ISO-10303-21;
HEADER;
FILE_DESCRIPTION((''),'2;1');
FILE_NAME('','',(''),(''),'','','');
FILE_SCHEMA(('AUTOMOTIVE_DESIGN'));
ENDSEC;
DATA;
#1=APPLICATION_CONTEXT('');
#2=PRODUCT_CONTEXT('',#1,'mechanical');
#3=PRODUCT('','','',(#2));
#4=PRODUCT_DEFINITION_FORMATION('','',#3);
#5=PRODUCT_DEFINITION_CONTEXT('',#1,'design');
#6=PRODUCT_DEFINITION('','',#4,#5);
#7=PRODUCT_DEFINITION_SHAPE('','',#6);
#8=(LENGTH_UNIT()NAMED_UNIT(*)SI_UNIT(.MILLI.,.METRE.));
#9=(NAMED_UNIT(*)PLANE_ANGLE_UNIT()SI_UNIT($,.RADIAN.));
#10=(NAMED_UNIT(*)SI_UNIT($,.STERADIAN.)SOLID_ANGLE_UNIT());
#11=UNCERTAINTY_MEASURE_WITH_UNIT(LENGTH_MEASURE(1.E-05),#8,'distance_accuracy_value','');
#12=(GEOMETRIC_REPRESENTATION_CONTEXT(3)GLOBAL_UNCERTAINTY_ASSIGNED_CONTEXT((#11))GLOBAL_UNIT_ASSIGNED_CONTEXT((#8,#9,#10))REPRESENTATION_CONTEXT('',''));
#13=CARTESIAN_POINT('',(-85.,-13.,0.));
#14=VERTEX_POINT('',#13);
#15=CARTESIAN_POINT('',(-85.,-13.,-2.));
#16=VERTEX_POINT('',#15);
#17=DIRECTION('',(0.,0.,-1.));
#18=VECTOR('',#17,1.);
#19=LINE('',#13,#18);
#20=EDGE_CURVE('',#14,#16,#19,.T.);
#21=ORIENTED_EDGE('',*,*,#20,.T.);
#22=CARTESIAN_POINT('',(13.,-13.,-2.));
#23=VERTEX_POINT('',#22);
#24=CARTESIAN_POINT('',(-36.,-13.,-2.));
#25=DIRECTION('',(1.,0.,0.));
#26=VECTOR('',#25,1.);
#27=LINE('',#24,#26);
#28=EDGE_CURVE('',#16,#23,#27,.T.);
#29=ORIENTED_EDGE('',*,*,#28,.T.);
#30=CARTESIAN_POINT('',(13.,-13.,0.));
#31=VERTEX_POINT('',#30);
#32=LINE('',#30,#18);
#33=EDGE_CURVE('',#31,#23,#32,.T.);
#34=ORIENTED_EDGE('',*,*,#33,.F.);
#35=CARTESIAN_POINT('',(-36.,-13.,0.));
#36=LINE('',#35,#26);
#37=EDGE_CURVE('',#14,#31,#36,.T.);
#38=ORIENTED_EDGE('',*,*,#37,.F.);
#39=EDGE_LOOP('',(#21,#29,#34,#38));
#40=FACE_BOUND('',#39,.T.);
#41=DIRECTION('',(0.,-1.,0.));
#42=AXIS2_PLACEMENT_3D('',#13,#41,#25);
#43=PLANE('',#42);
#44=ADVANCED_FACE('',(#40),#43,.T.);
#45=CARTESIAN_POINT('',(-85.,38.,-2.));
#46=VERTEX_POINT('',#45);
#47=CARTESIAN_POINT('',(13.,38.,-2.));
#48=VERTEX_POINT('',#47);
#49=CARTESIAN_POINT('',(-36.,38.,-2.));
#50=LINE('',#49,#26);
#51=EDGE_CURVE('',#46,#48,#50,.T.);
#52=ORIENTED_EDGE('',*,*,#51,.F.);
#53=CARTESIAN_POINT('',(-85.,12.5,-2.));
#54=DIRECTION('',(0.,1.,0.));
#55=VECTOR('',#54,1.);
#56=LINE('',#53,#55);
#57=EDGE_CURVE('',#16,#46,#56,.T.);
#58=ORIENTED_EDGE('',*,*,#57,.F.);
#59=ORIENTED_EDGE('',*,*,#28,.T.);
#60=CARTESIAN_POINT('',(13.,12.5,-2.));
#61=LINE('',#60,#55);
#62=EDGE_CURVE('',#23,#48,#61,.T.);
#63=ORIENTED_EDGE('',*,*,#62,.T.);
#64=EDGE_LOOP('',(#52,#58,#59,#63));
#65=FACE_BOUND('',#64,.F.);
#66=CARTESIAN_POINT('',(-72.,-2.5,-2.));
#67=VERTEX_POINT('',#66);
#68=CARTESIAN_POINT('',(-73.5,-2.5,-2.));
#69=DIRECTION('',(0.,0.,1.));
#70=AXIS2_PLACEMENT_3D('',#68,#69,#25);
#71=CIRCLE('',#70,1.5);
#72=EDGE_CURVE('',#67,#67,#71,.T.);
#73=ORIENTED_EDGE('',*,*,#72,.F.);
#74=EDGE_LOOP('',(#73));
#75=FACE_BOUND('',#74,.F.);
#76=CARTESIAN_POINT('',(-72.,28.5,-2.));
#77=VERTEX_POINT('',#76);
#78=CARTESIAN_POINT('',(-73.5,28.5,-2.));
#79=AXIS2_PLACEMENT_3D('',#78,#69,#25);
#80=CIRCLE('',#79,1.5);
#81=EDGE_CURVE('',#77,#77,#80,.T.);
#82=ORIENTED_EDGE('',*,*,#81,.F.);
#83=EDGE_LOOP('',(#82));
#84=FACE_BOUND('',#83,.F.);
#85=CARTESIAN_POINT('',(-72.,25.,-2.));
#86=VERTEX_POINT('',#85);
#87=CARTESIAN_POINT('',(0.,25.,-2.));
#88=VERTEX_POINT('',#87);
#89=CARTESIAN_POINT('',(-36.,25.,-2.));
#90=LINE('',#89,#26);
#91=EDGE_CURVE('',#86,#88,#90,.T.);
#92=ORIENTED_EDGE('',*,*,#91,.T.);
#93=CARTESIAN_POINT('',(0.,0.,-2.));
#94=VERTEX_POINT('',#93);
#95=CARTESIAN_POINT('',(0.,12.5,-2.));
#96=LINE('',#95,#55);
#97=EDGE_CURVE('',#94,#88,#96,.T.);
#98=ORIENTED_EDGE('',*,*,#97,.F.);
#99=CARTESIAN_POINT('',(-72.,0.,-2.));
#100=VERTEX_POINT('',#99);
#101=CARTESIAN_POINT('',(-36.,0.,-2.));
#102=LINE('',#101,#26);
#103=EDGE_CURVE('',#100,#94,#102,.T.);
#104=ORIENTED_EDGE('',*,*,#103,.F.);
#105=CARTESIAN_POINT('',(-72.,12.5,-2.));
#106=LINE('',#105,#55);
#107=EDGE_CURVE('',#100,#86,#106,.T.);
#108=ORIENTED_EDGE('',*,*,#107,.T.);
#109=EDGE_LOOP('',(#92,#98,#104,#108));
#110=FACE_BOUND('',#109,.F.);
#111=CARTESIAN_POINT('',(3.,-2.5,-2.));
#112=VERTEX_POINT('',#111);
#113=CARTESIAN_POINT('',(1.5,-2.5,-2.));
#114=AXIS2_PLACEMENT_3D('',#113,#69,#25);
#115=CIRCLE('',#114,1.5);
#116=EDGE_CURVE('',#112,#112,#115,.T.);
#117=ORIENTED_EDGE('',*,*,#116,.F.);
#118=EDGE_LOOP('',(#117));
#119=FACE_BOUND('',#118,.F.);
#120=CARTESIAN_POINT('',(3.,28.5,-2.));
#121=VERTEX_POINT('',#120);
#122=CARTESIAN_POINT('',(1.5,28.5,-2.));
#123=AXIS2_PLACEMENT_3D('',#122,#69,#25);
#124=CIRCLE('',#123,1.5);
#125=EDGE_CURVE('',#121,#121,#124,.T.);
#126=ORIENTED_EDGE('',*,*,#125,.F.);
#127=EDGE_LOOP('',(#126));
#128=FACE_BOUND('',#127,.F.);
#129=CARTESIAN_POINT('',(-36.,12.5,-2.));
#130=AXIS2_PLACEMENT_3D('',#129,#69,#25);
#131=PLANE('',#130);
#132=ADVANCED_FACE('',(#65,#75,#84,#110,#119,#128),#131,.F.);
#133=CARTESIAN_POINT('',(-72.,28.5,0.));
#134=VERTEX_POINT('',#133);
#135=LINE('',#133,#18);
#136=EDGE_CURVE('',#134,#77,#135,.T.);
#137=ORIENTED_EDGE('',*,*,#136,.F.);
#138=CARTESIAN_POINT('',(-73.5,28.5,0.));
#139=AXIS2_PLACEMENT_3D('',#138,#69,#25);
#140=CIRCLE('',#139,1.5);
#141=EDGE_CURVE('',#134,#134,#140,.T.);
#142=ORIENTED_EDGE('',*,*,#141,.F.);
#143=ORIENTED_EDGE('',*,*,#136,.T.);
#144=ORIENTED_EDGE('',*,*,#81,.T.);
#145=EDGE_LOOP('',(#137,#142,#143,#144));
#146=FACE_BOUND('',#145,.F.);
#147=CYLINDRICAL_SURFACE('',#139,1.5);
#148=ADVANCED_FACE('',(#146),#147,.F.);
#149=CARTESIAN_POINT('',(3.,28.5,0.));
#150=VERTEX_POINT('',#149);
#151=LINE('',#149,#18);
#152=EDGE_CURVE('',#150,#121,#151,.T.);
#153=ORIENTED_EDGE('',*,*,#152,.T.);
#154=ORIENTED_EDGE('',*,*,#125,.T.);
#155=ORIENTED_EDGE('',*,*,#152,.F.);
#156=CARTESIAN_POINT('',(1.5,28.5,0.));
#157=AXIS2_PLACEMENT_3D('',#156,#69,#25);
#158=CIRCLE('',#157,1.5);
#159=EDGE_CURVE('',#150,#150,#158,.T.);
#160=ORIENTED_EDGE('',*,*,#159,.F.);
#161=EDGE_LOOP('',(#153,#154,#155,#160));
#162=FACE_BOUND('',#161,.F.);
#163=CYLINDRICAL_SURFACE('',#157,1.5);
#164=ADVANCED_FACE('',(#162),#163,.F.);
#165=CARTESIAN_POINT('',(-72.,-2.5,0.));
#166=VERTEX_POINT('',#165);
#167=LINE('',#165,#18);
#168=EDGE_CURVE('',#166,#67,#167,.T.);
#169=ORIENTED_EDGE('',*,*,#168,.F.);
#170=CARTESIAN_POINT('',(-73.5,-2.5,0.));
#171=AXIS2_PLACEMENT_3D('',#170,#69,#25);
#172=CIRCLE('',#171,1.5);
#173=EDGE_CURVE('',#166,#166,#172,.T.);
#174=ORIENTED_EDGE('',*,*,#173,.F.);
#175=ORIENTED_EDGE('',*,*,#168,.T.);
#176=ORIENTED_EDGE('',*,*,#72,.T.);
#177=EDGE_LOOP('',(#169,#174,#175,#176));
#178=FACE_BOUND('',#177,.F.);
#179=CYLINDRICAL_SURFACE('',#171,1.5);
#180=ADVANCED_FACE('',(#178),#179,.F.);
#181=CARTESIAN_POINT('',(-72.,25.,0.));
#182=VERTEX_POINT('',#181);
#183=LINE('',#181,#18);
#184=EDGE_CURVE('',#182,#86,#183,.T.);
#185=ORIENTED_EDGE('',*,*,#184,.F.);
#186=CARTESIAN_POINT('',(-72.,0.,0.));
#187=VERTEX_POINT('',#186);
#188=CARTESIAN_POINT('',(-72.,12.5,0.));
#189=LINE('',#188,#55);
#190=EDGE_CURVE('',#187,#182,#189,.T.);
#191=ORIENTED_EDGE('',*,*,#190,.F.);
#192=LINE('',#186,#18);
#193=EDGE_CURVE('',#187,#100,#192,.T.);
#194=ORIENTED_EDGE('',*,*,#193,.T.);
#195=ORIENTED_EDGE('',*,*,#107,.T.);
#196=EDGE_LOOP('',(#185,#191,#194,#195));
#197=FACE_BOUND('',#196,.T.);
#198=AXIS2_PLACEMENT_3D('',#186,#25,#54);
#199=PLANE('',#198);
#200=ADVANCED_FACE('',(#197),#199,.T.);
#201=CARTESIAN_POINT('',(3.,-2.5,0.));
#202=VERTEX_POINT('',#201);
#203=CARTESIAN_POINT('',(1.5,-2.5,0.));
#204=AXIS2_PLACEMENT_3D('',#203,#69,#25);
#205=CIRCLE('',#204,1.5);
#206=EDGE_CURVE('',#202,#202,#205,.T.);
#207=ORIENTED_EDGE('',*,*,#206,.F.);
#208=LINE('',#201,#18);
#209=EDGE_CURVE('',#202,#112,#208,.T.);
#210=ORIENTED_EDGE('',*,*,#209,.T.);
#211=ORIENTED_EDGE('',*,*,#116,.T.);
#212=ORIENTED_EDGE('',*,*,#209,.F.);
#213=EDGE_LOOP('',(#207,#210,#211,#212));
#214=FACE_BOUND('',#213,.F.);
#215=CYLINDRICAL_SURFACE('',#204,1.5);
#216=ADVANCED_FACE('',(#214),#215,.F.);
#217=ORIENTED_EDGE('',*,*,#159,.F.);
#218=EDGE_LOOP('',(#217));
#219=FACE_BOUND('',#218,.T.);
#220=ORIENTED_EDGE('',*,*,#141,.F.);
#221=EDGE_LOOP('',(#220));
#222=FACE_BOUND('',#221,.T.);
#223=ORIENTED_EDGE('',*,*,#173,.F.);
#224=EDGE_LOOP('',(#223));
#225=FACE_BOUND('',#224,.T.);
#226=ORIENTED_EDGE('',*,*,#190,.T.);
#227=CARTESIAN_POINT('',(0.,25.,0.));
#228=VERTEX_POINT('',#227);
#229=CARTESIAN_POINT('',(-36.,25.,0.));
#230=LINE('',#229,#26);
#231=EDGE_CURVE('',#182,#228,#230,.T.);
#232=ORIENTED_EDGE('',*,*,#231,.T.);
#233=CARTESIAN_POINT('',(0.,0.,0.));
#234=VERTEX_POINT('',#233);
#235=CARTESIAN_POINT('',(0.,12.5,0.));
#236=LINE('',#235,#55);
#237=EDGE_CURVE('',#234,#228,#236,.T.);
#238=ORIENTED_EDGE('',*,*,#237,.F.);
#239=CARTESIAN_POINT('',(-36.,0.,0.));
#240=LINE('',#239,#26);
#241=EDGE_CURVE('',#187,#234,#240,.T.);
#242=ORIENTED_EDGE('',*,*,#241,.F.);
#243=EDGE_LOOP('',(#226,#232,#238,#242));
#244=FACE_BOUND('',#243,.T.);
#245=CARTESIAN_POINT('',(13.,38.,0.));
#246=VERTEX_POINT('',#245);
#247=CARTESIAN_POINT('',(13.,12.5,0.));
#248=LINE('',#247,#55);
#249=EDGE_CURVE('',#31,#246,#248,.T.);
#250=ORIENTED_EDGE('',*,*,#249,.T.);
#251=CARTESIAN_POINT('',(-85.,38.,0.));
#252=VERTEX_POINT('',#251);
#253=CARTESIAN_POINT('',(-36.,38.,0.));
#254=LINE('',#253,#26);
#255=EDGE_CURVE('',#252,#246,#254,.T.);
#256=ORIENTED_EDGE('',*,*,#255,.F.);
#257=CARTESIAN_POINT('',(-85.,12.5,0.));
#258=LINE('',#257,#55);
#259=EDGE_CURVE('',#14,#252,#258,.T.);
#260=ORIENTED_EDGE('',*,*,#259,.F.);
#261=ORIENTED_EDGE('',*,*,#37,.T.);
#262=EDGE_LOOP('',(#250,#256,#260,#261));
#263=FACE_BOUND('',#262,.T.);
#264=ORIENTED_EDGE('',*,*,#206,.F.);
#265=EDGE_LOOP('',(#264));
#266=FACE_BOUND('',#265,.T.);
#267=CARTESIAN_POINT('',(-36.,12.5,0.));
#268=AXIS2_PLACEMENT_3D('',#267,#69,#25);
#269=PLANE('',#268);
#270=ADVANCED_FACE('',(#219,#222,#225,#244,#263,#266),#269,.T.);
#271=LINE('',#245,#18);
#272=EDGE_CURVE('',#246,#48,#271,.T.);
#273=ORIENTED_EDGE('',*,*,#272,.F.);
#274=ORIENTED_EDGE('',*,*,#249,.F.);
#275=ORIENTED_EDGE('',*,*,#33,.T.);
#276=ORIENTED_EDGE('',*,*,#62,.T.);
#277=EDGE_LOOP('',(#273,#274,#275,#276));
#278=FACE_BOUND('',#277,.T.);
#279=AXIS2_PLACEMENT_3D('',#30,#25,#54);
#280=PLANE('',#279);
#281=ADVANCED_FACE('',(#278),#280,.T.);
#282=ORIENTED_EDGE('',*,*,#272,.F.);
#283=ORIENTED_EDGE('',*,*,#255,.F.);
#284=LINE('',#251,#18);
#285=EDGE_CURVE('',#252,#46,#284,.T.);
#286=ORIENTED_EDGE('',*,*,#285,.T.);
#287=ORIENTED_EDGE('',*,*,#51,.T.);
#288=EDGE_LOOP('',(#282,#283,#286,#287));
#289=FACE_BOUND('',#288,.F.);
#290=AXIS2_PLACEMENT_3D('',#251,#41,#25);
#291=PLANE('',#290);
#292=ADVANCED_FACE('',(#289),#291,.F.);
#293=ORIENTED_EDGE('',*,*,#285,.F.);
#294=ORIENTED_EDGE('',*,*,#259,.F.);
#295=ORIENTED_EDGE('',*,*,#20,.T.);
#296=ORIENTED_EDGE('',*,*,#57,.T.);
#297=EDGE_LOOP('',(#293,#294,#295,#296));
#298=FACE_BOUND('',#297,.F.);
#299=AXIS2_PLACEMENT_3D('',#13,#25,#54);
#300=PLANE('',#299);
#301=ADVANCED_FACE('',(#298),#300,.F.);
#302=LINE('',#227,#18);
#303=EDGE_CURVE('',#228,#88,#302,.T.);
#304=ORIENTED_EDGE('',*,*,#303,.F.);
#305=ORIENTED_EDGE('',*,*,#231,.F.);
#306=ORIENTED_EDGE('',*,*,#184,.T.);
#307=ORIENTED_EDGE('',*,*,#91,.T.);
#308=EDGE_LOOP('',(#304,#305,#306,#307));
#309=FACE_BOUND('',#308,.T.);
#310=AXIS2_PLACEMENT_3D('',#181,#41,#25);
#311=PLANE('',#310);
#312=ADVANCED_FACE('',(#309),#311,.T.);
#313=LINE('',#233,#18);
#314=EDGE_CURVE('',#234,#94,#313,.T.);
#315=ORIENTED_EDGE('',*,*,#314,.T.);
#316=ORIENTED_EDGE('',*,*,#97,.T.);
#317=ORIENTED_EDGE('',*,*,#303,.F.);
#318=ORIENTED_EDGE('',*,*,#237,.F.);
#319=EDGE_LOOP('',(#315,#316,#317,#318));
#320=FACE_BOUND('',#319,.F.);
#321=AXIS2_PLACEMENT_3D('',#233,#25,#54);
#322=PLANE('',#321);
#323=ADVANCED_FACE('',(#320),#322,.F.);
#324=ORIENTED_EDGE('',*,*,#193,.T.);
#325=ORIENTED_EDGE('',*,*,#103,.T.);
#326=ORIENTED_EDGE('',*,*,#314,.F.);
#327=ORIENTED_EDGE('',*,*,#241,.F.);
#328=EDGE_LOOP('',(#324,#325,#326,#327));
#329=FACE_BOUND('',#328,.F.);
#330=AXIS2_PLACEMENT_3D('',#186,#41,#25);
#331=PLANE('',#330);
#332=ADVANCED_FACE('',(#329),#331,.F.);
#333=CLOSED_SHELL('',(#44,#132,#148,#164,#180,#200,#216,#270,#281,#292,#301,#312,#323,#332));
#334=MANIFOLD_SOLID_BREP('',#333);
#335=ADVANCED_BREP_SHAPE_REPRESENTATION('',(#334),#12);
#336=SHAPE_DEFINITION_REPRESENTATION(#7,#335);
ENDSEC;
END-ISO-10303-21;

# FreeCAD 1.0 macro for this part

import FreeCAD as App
import Part
import Sketcher

V = App.Vector


def add_polygon(sketch, points):
    """Adds a closed chain of lines whose ends are joined by coincident constraints."""
    first, n = sketch.GeometryCount, len(points)
    for a, b in zip(points, points[1:] + points[:1]):
        sketch.addGeometry(Part.LineSegment(App.Vector(*a, 0), App.Vector(*b, 0)), False)
    for i in range(n):
        sketch.addConstraint(Sketcher.Constraint("Coincident", first + i, 2, first + (i + 1) % n, 1))

doc = App.newDocument("Part")
body = doc.addObject("PartDesign::Body", "Body")

# Sketch on XY plane
sketch1 = body.newObject("Sketcher::SketchObject", "Sketch")
sketch1.AttachmentSupport = (doc.getObject("XY_Plane"), [""])
sketch1.MapMode = "FlatFace"
add_polygon(sketch1, [(-85, 38), (-85, -13), (13, -13), (13, 38)])  # lines 0-3
sketch1.addGeometry(Part.Circle(V(-73.5, -2.5, 0), V(0, 0, 1), 1.5), False)  # 4
sketch1.addGeometry(Part.Circle(V(1.5, -2.5, 0), V(0, 0, 1), 1.5), False)  # 5
add_polygon(sketch1, [(0, 0), (-72, 0), (-72, 25), (0, 25)])  # lines 6-9
sketch1.addGeometry(Part.Circle(V(-73.5, 28.5, 0), V(0, 0, 1), 1.5), False)  # 10
sketch1.addGeometry(Part.Circle(V(1.5, 28.5, 0), V(0, 0, 1), 1.5), False)  # 11
sketch1.addConstraint([
    Sketcher.Constraint("Vertical", 0),
    Sketcher.Constraint("Horizontal", 1),
    Sketcher.Constraint("Vertical", 2),
    Sketcher.Constraint("Horizontal", 3),
    Sketcher.Constraint("Horizontal", 6),
    Sketcher.Constraint("Vertical", 7),
    Sketcher.Constraint("Horizontal", 8),
    Sketcher.Constraint("Vertical", 9),
    Sketcher.Constraint("Coincident", 9, 2, -1, 1),
    Sketcher.Constraint("Equal", 4, 5),
    Sketcher.Constraint("Equal", 5, 10),
    Sketcher.Constraint("Equal", 10, 11),
    Sketcher.Constraint("Horizontal", 4, 3, 5, 3),
    Sketcher.Constraint("Horizontal", 10, 3, 11, 3),
    Sketcher.Constraint("Vertical", 4, 3, 10, 3),
    Sketcher.Constraint("Vertical", 5, 3, 11, 3),
    Sketcher.Constraint("Diameter", 4, 3.0),
    Sketcher.Constraint("DistanceX", 1, 1, 1, 2, 98.0),
    Sketcher.Constraint("DistanceX", 6, 2, 6, 1, 72.0),
    Sketcher.Constraint("DistanceY", 0, 2, 0, 1, 51.0),
    Sketcher.Constraint("DistanceY", 7, 1, 7, 2, 25.0),
    Sketcher.Constraint("DistanceX", 0, 2, -1, 1, 85.0),
    Sketcher.Constraint("DistanceY", 0, 2, -1, 1, 13.0),
    Sketcher.Constraint("DistanceX", 4, 3, 5, 3, 75.0),
    Sketcher.Constraint("DistanceY", 4, 3, 10, 3, 31.0),
    Sketcher.Constraint("DistanceX", 4, 3, -1, 1, 73.5),
    Sketcher.Constraint("DistanceY", 4, 3, -1, 1, 2.5),
])
pad1 = body.newObject("PartDesign::Pad", "Pad")
pad1.Profile = sketch1
pad1.Length = 2
pad1.Reversed = True

doc.recompute()
